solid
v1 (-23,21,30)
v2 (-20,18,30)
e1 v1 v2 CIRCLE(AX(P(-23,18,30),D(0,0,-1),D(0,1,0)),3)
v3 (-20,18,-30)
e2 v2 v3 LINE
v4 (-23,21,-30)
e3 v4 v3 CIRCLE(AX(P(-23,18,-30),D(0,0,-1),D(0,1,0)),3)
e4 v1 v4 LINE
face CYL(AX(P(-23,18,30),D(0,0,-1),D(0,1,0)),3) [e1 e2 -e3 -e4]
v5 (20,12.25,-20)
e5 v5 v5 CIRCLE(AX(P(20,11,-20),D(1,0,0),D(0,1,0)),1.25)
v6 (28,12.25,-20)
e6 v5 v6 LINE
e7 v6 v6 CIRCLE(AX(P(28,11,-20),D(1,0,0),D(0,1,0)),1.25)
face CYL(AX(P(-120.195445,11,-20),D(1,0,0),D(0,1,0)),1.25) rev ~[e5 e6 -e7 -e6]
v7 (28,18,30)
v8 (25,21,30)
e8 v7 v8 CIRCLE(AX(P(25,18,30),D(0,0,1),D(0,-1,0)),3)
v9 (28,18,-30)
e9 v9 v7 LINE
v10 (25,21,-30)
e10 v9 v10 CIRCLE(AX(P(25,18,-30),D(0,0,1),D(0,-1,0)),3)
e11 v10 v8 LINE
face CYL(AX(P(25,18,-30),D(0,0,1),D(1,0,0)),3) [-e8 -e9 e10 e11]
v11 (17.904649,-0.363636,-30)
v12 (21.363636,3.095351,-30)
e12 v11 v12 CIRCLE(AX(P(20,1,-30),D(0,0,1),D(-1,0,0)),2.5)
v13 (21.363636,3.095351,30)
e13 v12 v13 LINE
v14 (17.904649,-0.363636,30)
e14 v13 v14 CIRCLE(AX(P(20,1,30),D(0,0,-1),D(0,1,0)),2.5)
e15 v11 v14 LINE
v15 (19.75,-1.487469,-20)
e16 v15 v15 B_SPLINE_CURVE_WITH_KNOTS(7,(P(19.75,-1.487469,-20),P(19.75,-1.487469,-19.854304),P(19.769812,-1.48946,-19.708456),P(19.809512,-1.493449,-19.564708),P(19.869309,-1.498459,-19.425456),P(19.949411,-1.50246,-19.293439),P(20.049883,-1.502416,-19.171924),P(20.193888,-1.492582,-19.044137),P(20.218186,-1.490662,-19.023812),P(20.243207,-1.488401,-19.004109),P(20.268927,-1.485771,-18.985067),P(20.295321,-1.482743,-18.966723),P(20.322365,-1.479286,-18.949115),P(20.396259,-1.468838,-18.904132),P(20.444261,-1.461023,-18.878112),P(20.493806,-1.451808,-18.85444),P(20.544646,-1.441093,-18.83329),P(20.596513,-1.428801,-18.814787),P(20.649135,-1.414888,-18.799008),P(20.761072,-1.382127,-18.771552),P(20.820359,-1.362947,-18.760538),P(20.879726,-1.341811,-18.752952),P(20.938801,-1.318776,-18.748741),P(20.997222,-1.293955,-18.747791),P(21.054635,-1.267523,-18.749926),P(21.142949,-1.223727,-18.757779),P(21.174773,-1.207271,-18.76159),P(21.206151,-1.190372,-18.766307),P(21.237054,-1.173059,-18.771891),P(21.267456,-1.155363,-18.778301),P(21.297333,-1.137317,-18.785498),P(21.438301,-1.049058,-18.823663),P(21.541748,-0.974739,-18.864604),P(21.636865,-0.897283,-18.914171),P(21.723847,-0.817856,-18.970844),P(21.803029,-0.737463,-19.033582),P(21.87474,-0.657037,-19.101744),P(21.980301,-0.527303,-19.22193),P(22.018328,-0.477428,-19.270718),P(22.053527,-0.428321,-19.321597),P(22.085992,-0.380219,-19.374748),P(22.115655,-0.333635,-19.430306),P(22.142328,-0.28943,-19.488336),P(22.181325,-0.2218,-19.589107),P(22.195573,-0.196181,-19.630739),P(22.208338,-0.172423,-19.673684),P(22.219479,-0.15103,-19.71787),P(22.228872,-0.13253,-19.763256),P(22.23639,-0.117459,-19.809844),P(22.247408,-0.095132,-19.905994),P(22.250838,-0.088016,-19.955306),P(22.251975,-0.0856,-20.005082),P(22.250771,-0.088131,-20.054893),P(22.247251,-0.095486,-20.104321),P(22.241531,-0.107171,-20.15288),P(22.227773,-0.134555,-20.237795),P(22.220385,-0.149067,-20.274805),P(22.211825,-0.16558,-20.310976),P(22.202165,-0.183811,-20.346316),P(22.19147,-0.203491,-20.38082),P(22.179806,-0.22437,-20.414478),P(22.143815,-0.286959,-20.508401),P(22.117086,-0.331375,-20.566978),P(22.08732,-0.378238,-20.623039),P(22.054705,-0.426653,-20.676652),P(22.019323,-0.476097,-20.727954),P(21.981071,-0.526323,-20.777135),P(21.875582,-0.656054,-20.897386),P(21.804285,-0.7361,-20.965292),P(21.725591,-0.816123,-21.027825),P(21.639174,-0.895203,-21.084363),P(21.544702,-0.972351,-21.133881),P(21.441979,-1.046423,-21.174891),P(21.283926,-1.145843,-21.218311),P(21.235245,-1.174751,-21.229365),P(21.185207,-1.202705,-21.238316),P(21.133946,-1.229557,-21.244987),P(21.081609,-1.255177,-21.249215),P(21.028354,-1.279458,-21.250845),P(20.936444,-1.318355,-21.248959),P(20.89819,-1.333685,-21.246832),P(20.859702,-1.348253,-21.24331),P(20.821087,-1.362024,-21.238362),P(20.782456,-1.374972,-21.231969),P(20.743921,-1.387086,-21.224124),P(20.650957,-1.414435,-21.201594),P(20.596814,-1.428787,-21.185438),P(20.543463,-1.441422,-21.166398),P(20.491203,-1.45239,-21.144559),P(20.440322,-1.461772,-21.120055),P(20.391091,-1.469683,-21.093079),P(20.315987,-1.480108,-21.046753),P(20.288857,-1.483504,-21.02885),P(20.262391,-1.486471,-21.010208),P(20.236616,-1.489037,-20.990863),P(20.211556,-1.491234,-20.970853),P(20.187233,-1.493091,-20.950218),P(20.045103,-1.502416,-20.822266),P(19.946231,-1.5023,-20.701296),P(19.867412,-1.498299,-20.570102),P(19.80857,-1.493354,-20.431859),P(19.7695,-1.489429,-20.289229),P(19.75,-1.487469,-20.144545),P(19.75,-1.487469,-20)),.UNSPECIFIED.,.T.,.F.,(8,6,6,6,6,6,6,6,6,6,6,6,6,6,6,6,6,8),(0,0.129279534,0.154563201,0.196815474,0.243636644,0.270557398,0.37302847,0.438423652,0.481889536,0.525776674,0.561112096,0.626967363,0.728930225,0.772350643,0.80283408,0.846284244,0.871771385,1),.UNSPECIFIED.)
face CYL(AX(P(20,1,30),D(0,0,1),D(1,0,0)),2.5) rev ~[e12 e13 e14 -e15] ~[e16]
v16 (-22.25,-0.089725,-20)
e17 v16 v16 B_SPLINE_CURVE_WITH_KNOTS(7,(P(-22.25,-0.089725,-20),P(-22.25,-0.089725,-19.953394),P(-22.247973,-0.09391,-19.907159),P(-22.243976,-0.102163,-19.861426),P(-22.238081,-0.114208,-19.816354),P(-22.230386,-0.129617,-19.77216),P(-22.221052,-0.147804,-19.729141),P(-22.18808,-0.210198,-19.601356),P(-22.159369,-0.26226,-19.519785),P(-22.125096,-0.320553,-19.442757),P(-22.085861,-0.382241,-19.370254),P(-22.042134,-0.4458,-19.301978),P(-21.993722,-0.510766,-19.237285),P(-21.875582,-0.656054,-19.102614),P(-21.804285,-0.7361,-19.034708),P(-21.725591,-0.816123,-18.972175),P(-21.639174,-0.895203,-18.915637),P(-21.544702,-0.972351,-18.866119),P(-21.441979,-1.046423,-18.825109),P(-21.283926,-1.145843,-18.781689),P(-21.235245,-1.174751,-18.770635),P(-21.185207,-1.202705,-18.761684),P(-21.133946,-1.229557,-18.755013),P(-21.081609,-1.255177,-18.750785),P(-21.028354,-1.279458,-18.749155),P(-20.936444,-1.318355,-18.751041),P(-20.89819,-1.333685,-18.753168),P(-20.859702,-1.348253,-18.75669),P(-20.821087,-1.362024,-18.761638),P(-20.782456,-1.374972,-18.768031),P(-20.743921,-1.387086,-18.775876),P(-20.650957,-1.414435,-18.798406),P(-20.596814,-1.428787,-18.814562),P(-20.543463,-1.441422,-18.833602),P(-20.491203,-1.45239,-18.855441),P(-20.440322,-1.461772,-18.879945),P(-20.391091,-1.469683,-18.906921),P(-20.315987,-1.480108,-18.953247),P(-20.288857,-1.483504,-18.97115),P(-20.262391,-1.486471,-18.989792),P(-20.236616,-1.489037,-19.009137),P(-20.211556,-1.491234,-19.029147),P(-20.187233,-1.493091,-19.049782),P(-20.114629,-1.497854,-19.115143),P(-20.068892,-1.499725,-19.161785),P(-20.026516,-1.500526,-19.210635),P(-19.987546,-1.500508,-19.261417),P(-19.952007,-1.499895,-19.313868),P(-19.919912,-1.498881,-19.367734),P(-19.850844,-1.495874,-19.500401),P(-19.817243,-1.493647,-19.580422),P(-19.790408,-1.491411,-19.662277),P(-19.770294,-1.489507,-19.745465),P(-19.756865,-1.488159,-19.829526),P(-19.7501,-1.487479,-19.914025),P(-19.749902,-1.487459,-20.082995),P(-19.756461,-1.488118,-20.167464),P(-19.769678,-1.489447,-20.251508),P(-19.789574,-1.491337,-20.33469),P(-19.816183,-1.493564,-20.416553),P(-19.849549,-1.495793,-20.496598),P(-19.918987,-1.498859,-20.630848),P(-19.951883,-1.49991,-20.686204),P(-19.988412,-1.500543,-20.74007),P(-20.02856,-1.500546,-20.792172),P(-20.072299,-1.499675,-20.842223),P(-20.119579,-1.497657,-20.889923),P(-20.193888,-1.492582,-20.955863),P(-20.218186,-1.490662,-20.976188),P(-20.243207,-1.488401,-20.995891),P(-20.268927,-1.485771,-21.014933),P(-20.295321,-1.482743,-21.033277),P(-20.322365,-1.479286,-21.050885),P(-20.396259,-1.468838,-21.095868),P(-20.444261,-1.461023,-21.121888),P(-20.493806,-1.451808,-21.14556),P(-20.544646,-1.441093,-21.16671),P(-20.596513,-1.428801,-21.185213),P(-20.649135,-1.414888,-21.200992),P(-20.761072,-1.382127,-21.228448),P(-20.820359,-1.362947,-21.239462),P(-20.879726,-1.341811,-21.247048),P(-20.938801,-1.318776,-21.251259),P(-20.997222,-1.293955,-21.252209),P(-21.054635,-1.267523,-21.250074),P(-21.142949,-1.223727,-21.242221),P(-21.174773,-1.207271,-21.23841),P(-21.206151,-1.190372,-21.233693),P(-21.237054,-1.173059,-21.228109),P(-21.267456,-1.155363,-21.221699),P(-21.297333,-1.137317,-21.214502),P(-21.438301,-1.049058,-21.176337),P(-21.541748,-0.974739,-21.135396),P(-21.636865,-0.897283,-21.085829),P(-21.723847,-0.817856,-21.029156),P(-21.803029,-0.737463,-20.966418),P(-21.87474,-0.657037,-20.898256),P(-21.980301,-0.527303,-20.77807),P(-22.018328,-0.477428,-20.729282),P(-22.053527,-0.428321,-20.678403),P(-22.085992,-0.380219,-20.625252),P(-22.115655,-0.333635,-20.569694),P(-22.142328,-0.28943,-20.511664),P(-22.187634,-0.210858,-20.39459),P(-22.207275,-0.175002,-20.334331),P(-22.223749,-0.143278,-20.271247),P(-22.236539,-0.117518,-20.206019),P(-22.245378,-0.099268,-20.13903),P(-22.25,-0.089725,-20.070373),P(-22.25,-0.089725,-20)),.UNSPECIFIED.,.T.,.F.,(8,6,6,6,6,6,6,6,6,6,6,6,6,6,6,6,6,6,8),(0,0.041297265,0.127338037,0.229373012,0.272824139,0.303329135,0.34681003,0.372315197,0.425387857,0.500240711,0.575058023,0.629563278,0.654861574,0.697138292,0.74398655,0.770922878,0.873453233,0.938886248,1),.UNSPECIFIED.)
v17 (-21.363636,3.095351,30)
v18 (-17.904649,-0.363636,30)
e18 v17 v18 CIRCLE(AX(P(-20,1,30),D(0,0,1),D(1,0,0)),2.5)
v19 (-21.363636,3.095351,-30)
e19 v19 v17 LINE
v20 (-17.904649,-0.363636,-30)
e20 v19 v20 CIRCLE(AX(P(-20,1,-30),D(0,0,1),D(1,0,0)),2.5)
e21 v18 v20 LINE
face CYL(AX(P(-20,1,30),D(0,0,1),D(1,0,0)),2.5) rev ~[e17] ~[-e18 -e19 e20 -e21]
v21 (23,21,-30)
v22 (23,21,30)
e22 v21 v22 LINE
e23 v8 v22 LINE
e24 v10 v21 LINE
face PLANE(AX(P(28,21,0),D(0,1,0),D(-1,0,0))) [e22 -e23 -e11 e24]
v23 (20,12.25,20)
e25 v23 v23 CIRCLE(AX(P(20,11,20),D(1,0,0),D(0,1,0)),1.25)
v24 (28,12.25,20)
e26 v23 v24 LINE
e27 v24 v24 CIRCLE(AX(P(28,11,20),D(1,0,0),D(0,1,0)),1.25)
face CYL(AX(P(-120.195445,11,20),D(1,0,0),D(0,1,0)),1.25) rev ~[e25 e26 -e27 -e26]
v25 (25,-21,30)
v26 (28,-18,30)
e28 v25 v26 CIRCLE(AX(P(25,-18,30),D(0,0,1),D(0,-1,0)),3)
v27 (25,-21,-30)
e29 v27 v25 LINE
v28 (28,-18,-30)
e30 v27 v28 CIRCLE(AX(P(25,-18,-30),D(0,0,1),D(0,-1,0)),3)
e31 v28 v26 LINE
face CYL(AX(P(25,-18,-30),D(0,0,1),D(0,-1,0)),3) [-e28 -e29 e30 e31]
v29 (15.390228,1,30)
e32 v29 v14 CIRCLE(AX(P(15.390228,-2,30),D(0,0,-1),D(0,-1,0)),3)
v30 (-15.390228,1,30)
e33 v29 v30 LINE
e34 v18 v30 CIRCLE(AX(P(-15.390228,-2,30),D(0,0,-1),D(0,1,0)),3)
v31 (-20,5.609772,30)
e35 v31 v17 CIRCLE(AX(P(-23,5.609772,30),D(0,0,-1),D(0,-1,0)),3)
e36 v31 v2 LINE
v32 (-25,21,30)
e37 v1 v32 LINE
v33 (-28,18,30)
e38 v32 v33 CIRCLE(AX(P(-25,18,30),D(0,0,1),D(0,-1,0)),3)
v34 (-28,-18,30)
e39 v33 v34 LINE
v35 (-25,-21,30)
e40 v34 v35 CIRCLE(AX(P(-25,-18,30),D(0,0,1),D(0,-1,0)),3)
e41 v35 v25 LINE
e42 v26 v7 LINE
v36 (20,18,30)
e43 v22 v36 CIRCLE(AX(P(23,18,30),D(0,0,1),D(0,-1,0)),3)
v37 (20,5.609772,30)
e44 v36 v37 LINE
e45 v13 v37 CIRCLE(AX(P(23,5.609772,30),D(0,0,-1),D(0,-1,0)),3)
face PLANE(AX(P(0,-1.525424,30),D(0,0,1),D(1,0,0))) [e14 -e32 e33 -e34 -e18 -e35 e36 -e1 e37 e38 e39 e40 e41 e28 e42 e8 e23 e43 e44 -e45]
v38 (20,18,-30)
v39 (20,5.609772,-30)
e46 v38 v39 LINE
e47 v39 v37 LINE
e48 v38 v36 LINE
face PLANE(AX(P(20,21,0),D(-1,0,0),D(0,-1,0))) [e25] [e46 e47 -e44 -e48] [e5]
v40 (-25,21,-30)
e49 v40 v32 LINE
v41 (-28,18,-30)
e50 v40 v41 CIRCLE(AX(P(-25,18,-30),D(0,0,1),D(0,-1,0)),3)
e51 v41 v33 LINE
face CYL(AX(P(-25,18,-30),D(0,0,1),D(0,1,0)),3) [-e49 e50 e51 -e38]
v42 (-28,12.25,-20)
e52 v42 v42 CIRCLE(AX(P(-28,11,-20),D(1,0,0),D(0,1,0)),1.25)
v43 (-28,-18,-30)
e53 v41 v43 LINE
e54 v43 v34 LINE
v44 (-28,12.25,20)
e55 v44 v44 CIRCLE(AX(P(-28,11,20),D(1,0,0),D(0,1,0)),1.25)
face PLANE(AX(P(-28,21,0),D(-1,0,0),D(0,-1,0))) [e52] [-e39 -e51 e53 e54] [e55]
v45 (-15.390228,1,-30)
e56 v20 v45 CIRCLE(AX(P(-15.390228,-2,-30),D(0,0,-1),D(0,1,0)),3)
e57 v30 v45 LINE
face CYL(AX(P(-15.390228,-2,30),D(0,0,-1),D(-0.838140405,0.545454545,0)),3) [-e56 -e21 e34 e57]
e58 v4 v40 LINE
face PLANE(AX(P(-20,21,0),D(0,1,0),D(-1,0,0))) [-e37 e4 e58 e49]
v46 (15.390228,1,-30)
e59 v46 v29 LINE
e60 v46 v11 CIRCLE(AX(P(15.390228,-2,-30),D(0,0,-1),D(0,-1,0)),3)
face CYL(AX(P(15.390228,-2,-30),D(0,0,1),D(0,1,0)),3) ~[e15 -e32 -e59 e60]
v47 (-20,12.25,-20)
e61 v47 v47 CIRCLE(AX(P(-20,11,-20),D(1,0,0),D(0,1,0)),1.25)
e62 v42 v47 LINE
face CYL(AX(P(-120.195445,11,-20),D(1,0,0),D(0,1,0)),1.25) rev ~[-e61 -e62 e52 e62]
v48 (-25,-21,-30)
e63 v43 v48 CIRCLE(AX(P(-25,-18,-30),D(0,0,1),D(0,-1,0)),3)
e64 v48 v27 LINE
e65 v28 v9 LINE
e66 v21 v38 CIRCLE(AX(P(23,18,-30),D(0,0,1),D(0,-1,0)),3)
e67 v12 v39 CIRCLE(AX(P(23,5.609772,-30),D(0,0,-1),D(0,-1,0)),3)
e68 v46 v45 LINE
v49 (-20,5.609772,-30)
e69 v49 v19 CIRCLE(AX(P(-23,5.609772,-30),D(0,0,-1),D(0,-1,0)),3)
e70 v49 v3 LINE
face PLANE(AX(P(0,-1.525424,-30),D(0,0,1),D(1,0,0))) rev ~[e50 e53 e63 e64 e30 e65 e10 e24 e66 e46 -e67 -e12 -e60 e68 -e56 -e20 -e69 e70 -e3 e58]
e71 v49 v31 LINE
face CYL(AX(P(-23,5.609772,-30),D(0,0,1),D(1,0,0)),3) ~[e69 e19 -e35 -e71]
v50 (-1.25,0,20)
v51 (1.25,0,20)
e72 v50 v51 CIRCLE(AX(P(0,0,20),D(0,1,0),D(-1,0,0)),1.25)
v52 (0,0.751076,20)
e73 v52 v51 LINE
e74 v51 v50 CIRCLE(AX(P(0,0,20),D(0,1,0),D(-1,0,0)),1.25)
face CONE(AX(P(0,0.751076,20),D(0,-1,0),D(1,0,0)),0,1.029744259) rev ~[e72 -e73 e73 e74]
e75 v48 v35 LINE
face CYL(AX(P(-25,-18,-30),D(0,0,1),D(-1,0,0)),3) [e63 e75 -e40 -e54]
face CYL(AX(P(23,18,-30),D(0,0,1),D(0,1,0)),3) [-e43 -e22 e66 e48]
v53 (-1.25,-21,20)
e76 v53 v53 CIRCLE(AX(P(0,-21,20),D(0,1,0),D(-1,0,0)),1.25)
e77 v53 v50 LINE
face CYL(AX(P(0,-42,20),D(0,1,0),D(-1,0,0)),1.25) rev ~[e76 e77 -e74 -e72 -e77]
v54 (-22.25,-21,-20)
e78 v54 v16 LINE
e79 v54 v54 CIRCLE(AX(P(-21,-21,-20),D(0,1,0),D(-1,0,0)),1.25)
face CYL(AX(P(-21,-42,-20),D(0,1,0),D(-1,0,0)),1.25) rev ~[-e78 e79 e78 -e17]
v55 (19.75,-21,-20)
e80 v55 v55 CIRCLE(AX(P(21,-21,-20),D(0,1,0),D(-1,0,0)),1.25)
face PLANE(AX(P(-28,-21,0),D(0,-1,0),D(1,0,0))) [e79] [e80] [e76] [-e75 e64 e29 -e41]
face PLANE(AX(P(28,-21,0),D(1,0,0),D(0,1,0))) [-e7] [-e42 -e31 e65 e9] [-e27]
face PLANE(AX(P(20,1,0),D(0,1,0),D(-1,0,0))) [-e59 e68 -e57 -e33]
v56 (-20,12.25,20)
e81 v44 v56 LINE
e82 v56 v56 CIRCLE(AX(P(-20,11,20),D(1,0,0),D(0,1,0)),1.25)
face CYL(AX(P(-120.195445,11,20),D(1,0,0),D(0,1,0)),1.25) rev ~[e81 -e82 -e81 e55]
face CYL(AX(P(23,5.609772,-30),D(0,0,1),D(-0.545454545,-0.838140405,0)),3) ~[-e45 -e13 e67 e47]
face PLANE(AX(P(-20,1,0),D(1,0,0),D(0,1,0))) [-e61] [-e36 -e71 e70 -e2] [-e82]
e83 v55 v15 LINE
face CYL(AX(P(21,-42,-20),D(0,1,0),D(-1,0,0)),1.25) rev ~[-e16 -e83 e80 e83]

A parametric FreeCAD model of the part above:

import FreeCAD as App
import Part
import Sketcher
from FreeCAD import Vector


def edges_at(feature, points):
    """Names of the edges that pass closest to the given points."""
    edges = feature.Shape.Edges
    near = lambda p: min(range(len(edges)), key=lambda i: edges[i].distToShape(Part.Vertex(*p))[0])
    return sorted({f"Edge{near(p) + 1}" for p in points})

doc = App.newDocument("Part")
body = doc.addObject("PartDesign::Body", "Body")

# Sketch on XY plane
sketch1 = body.newObject("Sketcher::SketchObject", "Sketch")
sketch1.AttachmentSupport = (doc.getObject("XY_Plane"), [""])
sketch1.MapMode = "FlatFace"
sketch1.addGeometry([
    Part.LineSegment(Vector(-20, 21, 0), Vector(-28, 21, 0)),  # 0
    Part.LineSegment(Vector(-28, 21, 0), Vector(-28, -21, 0)),  # 1
    Part.LineSegment(Vector(-28, -21, 0), Vector(28, -21, 0)),  # 2
    Part.LineSegment(Vector(28, -21, 0), Vector(28, 21, 0)),  # 3
    Part.LineSegment(Vector(28, 21, 0), Vector(20, 21, 0)),  # 4
    Part.LineSegment(Vector(20, 21, 0), Vector(20, 1, 0)),  # 5
    Part.LineSegment(Vector(20, 1, 0), Vector(-20, 1, 0)),  # 6
    Part.LineSegment(Vector(-20, 1, 0), Vector(-20, 21, 0)),  # 7
], False)
sketch1.addConstraint([
    Sketcher.Constraint("Coincident", 0, 2, 1, 1),
    Sketcher.Constraint("Coincident", 1, 2, 2, 1),
    Sketcher.Constraint("Coincident", 2, 2, 3, 1),
    Sketcher.Constraint("Coincident", 3, 2, 4, 1),
    Sketcher.Constraint("Coincident", 4, 2, 5, 1),
    Sketcher.Constraint("Coincident", 5, 2, 6, 1),
    Sketcher.Constraint("Coincident", 6, 2, 7, 1),
    Sketcher.Constraint("Coincident", 7, 2, 0, 1),
    Sketcher.Constraint("Horizontal", 0),
    Sketcher.Constraint("Vertical", 1),
    Sketcher.Constraint("Horizontal", 2),
    Sketcher.Constraint("Vertical", 3),
    Sketcher.Constraint("Horizontal", 4),
    Sketcher.Constraint("Vertical", 5),
    Sketcher.Constraint("Horizontal", 6),
    Sketcher.Constraint("Vertical", 7),
    Sketcher.Constraint("Symmetric", 0, 2, 2, 2, -1, 1),
    Sketcher.Constraint("Symmetric", 4, 2, 7, 2, -2),
    Sketcher.Constraint("DistanceX", 0, 2, 0, 1, 8.0),
    Sketcher.Constraint("DistanceX", 2, 1, 2, 2, 56.0),
    Sketcher.Constraint("DistanceY", 1, 2, 1, 1, 42.0),
    Sketcher.Constraint("DistanceY", 5, 2, 5, 1, 20.0),
])
pad1 = body.newObject("PartDesign::Pad", "Pad")
pad1.Profile = sketch1
pad1.Length = 60
pad1.Midplane = True

# Sketch on YZ plane
sketch2 = body.newObject("Sketcher::SketchObject", "Sketch001")
sketch2.AttachmentSupport = (doc.getObject("YZ_Plane"), [""])
sketch2.MapMode = "FlatFace"
sketch2.AttachmentOffset = App.Placement(Vector(0, 0, -28), App.Rotation())
sketch2.addGeometry([
    Part.Circle(Vector(11, 20, 0), Vector(0, 0, 1), 1.2),
    Part.Circle(Vector(11, -20, 0), Vector(0, 0, 1), 1.2),
], False)
sketch2.addConstraint([
    Sketcher.Constraint("Equal", 0, 1),
    Sketcher.Constraint("Symmetric", 0, 3, 1, 3, -1),
    Sketcher.Constraint("Diameter", 0, 2.5),
    Sketcher.Constraint("DistanceX", -1, 1, 0, 3, 11.0),
    Sketcher.Constraint("DistanceY", -1, 1, 0, 3, 20.0),
])
doc.recompute()
hole = body.newObject("PartDesign::Hole", "Hole")
hole.Profile = sketch2
hole.ThreadType = "None"
hole.Diameter = 2.5
hole.DepthType = "ThroughAll"
hole.Reversed = True

# Sketch on XZ plane
sketch3 = body.newObject("Sketcher::SketchObject", "Sketch002")
sketch3.AttachmentSupport = (doc.getObject("XZ_Plane"), [""])
sketch3.MapMode = "FlatFace"
sketch3.AttachmentOffset = App.Placement(Vector(0, 0, 21), App.Rotation())
sketch3.addGeometry([
    Part.Circle(Vector(0, 20, 0), Vector(0, 0, 1), 1.2),
    Part.Circle(Vector(-21, -20, 0), Vector(0, 0, 1), 1.2),
    Part.Circle(Vector(21, -20, 0), Vector(0, 0, 1), 1.2),
], False)
sketch3.addConstraint([
    Sketcher.Constraint("Equal", 0, 1),
    Sketcher.Constraint("Equal", 1, 2),
    Sketcher.Constraint("Symmetric", 1, 3, 2, 3, -2),
    Sketcher.Constraint("PointOnObject", 0, 3, -2),
    Sketcher.Constraint("Diameter", 0, 2.5),
    Sketcher.Constraint("DistanceY", -1, 1, 0, 3, 20.0),
    Sketcher.Constraint("DistanceX", 1, 3, -1, 1, 21.0),
    Sketcher.Constraint("DistanceY", 1, 3, -1, 1, 20.0),
])
doc.recompute()
hole2 = body.newObject("PartDesign::Hole", "Hole001")
hole2.Profile = sketch3
hole2.ThreadType = "None"
hole2.Diameter = 2.5
hole2.DepthType = "Dimension"
hole2.Depth = 21
hole2.DrillPoint = "Angled"
hole2.DrillPointAngle = 118
doc.recompute()

fillet = body.newObject("PartDesign::Fillet", "Fillet")
fillet.Base = (hole2, edges_at(hole2, [
    (-28, -21, 0),
    (28, -21, 0),
    (-28, 21, 0),
    (-20, 21, 0),
    (20, 21, 0),
    (28, 21, 0),
]))
fillet.Radius = 3

# Sketch on XY plane
sketch4 = body.newObject("Sketcher::SketchObject", "Sketch003")
sketch4.AttachmentSupport = (doc.getObject("XY_Plane"), [""])
sketch4.MapMode = "FlatFace"
sketch4.AttachmentOffset = App.Placement(Vector(0, 0, 30), App.Rotation())
sketch4.addGeometry([
    Part.Circle(Vector(-20, 1, 0), Vector(0, 0, 1), 2.5),
    Part.Circle(Vector(20, 1, 0), Vector(0, 0, 1), 2.5),
], False)
sketch4.addConstraint([
    Sketcher.Constraint("Equal", 0, 1),
    Sketcher.Constraint("Symmetric", 0, 3, 1, 3, -2),
    Sketcher.Constraint("Diameter", 0, 5.0),
    Sketcher.Constraint("DistanceX", 0, 3, -1, 1, 20.0),
    Sketcher.Constraint("DistanceY", -1, 1, 0, 3, 1.0),
])
pocket1 = body.newObject("PartDesign::Pocket", "Pocket")
pocket1.Profile = sketch4
pocket1.Type = "ThroughAll"
doc.recompute()

fillet2 = body.newObject("PartDesign::Fillet", "Fillet001")
fillet2.Base = (pocket1, edges_at(pocket1, [
    (-17.5, 1, 0),
    (-20, 3.5, 0),
    (17.5, 1, 0),
    (20, 3.5, 0),
]))
fillet2.Radius = 3

doc.recompute()
